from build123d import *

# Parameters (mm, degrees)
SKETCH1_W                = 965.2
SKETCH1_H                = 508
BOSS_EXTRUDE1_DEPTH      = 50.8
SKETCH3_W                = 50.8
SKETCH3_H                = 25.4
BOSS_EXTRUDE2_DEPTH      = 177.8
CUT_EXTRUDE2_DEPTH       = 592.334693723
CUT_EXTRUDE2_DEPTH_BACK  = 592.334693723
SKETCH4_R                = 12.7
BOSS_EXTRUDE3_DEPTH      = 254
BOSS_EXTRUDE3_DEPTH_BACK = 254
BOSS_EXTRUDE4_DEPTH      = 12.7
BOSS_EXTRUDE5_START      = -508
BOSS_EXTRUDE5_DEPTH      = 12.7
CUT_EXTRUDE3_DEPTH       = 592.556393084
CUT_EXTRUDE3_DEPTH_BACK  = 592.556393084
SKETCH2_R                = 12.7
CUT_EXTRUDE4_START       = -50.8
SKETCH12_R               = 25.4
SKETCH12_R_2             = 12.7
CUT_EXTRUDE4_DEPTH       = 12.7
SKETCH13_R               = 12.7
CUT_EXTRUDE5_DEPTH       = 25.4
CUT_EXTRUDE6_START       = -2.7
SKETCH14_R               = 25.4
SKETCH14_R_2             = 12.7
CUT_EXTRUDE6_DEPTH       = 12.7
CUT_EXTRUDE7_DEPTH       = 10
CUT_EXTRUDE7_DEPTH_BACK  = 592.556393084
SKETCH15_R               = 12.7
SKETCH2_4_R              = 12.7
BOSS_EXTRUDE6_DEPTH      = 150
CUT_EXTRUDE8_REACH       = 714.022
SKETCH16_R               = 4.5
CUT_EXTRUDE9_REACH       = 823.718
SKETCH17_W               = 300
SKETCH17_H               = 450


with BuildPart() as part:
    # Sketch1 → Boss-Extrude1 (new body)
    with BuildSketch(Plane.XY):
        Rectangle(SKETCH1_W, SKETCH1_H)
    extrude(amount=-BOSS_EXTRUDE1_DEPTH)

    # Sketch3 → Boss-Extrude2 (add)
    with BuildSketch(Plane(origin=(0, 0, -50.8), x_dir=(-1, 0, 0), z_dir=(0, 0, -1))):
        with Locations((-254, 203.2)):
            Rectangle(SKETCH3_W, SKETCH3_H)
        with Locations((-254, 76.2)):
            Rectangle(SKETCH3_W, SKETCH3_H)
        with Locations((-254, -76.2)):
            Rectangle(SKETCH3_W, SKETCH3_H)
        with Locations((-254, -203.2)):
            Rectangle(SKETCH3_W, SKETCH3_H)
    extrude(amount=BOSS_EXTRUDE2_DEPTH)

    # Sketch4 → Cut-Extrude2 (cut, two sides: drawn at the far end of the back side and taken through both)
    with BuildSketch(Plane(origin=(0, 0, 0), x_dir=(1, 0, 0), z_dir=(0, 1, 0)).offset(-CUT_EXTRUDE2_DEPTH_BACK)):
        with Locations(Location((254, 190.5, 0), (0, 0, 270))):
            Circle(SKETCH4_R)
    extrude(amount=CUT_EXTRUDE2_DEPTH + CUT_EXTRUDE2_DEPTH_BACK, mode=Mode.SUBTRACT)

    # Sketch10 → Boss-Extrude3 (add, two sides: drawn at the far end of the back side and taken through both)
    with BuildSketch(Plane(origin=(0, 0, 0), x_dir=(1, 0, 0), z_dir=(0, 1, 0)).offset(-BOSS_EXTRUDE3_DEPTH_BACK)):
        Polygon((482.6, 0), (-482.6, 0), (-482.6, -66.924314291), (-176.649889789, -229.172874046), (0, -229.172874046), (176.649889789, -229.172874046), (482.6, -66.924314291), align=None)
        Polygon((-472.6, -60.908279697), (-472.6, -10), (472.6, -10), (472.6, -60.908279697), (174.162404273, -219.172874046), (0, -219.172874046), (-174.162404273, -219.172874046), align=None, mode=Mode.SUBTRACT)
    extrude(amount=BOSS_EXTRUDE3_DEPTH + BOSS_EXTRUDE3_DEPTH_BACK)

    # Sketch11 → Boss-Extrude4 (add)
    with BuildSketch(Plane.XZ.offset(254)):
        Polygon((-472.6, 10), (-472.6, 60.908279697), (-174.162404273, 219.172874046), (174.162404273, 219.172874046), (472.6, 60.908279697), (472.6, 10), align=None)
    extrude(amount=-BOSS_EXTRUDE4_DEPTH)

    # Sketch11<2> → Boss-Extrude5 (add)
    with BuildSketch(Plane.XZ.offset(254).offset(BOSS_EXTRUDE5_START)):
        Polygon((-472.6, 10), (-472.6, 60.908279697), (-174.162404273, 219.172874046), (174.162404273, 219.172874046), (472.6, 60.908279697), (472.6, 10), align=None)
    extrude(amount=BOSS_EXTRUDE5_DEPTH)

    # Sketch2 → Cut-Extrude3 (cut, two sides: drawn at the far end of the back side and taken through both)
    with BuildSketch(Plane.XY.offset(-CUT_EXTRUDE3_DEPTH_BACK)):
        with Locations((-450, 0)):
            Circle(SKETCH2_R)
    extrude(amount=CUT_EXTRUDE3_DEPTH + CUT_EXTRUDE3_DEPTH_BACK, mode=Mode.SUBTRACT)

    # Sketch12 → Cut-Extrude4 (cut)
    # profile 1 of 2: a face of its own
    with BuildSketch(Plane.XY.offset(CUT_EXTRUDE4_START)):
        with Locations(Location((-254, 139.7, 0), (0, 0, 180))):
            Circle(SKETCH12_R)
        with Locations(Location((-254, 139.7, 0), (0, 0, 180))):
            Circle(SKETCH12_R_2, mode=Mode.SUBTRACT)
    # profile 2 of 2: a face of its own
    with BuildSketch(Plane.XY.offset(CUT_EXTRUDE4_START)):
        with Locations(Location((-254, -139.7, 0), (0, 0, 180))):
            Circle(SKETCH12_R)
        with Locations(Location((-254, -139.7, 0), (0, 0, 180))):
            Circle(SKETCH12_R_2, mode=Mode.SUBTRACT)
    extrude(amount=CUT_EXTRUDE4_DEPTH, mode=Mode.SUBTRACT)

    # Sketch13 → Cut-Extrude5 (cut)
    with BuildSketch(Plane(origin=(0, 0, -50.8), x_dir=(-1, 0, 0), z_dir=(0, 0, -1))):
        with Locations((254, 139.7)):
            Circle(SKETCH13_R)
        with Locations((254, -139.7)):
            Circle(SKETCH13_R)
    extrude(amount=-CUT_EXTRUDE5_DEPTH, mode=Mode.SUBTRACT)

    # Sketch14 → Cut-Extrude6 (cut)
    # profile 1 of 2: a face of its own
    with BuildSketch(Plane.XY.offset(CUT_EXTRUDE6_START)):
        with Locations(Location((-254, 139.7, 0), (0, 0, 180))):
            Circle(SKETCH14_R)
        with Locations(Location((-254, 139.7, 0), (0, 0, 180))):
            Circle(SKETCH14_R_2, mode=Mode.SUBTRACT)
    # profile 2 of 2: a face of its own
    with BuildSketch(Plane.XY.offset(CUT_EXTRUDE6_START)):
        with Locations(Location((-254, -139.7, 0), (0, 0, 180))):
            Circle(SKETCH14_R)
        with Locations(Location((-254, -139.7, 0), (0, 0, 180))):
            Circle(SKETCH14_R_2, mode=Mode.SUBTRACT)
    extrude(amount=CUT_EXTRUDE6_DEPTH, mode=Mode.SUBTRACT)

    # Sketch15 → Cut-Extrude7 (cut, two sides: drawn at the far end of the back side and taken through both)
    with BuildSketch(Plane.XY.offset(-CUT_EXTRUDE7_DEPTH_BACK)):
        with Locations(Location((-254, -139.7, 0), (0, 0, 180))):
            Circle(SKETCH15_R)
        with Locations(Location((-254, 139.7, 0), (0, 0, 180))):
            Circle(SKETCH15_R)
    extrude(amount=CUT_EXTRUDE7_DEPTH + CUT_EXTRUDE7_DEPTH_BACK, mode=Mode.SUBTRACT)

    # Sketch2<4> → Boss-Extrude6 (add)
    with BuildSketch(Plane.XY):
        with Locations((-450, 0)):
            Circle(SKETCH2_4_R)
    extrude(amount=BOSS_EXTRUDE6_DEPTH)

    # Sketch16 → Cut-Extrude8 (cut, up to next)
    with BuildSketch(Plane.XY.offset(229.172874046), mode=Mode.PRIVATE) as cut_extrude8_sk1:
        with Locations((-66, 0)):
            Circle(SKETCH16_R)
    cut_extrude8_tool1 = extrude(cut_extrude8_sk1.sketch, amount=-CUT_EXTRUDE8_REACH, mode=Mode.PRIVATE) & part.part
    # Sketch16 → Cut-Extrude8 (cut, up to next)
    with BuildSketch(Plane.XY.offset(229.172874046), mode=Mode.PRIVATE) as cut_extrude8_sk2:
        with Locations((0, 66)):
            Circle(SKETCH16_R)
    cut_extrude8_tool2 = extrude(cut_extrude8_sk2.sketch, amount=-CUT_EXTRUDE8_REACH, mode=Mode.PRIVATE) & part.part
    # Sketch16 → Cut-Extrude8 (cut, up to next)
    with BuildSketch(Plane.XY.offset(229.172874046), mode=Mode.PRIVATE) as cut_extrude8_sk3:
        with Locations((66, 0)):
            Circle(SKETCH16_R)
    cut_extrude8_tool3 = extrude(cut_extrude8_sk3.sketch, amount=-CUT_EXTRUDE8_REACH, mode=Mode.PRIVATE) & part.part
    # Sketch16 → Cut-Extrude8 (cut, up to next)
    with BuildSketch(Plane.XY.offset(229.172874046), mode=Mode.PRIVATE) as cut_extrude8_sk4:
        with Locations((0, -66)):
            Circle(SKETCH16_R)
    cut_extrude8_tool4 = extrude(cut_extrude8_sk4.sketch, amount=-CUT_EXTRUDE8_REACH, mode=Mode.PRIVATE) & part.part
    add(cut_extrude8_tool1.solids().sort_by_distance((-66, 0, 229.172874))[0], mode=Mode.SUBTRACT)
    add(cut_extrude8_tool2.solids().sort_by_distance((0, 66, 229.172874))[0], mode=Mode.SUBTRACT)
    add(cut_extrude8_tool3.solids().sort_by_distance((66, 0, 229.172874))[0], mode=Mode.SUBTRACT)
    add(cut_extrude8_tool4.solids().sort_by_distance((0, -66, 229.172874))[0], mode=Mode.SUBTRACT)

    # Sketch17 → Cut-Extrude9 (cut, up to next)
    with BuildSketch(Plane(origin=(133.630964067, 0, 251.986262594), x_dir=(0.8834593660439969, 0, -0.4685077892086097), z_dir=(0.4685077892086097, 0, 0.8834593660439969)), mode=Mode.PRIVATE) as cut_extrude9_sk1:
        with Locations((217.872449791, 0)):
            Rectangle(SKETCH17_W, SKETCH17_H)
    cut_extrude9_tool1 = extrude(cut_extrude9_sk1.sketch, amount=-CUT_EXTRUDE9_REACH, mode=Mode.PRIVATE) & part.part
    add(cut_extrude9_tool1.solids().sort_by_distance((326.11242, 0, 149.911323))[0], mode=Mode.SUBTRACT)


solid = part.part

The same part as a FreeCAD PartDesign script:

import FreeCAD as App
import Part
import Sketcher

V = App.Vector
Q = App.Units.Quantity


def add_polygon(sketch, points):
    """Adds a closed chain of lines whose ends are joined by coincident constraints."""
    first, n = sketch.GeometryCount, len(points)
    for a, b in zip(points, points[1:] + points[:1]):
        sketch.addGeometry(Part.LineSegment(App.Vector(*a, 0), App.Vector(*b, 0)), False)
    for i in range(n):
        sketch.addConstraint(Sketcher.Constraint("Coincident", first + i, 2, first + (i + 1) % n, 1))

doc = App.newDocument("Part")
params = doc.addObject("Spreadsheet::Sheet", "Params")
for row, (alias, value) in enumerate([
    ("sketch1_width", "38 in"),
    ("sketch1_height", "20 in"),
    ("pad1_length", "2 in"),
    ("sketch2_width", "2 in"),
    ("sketch2_height", "1 in"),
    ("pad2_length", "7 in"),
    ("sketch3_diameter", "1 in"),
    ("sketch4_width", "38 in"),
    ("pad3_length", "10 in"),
    ("pad3_length2", "10 in"),
    ("pad4_length", "0.5 in"),
    ("pad5_length", "0.5 in"),
    ("sketch7_diameter", "1 in"),
    ("sketch8_diameter", "2 in"),
    ("sketch8_diameter2", "1 in"),
    ("pocket3_length", "0.5 in"),
    ("sketch9_diameter", "1 in"),
    ("pocket4_length", "1 in"),
    ("sketch10_diameter", "2 in"),
    ("sketch10_diameter2", "1 in"),
    ("pocket5_length", "0.5 in"),
    ("sketch11_diameter", "1 in"),
    ("pocket6_length", "10 mm"),
    ("pocket6_length2", "592.556393 mm"),
    ("sketch12_diameter", "1 in"),
    ("pad6_length", "150 mm"),
], start=1):
    params.set(f"A{row}", alias)
    params.set(f"B{row}", "=" + value)
    params.setAlias(f"B{row}", alias)

body = doc.addObject("PartDesign::Body", "Body")

# Sketch on XY plane
sketch1 = body.newObject("Sketcher::SketchObject", "Sketch")
sketch1.AttachmentSupport = (doc.getObject("XY_Plane"), [""])
sketch1.MapMode = "FlatFace"
add_polygon(sketch1, [(-483, 254), (-483, -254), (483, -254), (483, 254)])  # lines 0-3
sketch1.addConstraint([
    Sketcher.Constraint("Vertical", 0),
    Sketcher.Constraint("Horizontal", 1),
    Sketcher.Constraint("Vertical", 2),
    Sketcher.Constraint("Horizontal", 3),
    Sketcher.Constraint("Symmetric", 0, 2, 2, 2, -1, 1),
    Sketcher.Constraint("DistanceX", 1, 1, 1, 2, Q("38 in")),
    Sketcher.Constraint("DistanceY", 0, 2, 0, 1, Q("20 in")),
])
sketch1.setExpression("Constraints[9]", "Params.sketch1_width")
sketch1.setExpression("Constraints[10]", "Params.sketch1_height")
pad1 = body.newObject("PartDesign::Pad", "Pad")
pad1.Profile = sketch1
pad1.setExpression("Length", "Params.pad1_length")
pad1.Reversed = True

# Sketch on XY plane
sketch2 = body.newObject("Sketcher::SketchObject", "Sketch001")
sketch2.AttachmentSupport = (doc.getObject("XY_Plane"), [""])
sketch2.MapMode = "FlatFace"
sketch2.AttachmentOffset = App.Placement(V(0, 0, -2 * 25.4), App.Rotation())
add_polygon(sketch2, [(279, 216), (279, 190), (229, 190), (229, 216)])  # lines 0-3
add_polygon(sketch2, [(279, 89), (279, 64), (229, 64), (229, 89)])  # lines 4-7
add_polygon(sketch2, [(279, -64), (279, -89), (229, -89), (229, -64)])  # lines 8-11
add_polygon(sketch2, [(279, -190), (279, -216), (229, -216), (229, -190)])  # lines 12-15
sketch2.addConstraint([
    Sketcher.Constraint("Vertical", 0),
    Sketcher.Constraint("Horizontal", 1),
    Sketcher.Constraint("Vertical", 2),
    Sketcher.Constraint("Horizontal", 3),
    Sketcher.Constraint("Vertical", 4),
    Sketcher.Constraint("Horizontal", 5),
    Sketcher.Constraint("Vertical", 6),
    Sketcher.Constraint("Horizontal", 7),
    Sketcher.Constraint("Vertical", 8),
    Sketcher.Constraint("Horizontal", 9),
    Sketcher.Constraint("Vertical", 10),
    Sketcher.Constraint("Horizontal", 11),
    Sketcher.Constraint("Vertical", 12),
    Sketcher.Constraint("Horizontal", 13),
    Sketcher.Constraint("Vertical", 14),
    Sketcher.Constraint("Horizontal", 15),
    Sketcher.Constraint("Symmetric", 7, 2, 8, 2, -1),
    Sketcher.Constraint("Symmetric", 5, 2, 10, 2, -1),
    Sketcher.Constraint("Symmetric", 3, 2, 12, 2, -1),
    Sketcher.Constraint("Symmetric", 1, 2, 14, 2, -1),
    Sketcher.Constraint("Vertical", 3, 2, 4, 2),
    Sketcher.Constraint("Vertical", 2, 2, 5, 2),
    Sketcher.Constraint("Equal", 2, 4),
    Sketcher.Constraint("DistanceX", 1, 2, 1, 1, Q("2 in")),
    Sketcher.Constraint("DistanceY", 0, 2, 0, 1, Q("1 in")),
    Sketcher.Constraint("DistanceX", -1, 1, 0, 2, Q("11 in")),
    Sketcher.Constraint("DistanceY", 4, 2, 0, 2, Q("5 in")),
    Sketcher.Constraint("DistanceY", 8, 2, 4, 2, Q("6 in")),
])
sketch2.setExpression("Constraints[39]", "Params.sketch2_width")
sketch2.setExpression("Constraints[40]", "Params.sketch2_height")
pad2 = body.newObject("PartDesign::Pad", "Pad001")
pad2.Profile = sketch2
pad2.setExpression("Length", "Params.pad2_length")
pad2.Reversed = True

# Sketch on XZ plane
sketch3 = body.newObject("Sketcher::SketchObject", "Sketch002")
sketch3.AttachmentSupport = (doc.getObject("XZ_Plane"), [""])
sketch3.MapMode = "FlatFace"
sketch3.addGeometry(Part.Circle(V(254, -190, 0), V(0, 0, 1), 13), False)
sketch3.addConstraint([
    Sketcher.Constraint("Diameter", 0, Q("1 in")),
    Sketcher.Constraint("DistanceX", -1, 1, 0, 3, Q("10 in")),
    Sketcher.Constraint("DistanceY", 0, 3, -1, 1, Q("7.5 in")),
])
sketch3.setExpression("Constraints[0]", "Params.sketch3_diameter")
pocket1 = body.newObject("PartDesign::Pocket", "Pocket")
pocket1.Profile = sketch3
pocket1.Type = "ThroughAll"
pocket1.Midplane = True

# Sketch on XZ plane
sketch4 = body.newObject("Sketcher::SketchObject", "Sketch003")
sketch4.AttachmentSupport = (doc.getObject("XZ_Plane"), [""])
sketch4.MapMode = "FlatFace"
add_polygon(sketch4, [(482.6, 0), (-482.6, 0), (-482.6, 66.924314), (-176.64989, 229.172874), (176.64989, 229.172874), (482.6, 66.924314)])  # lines 0-5
add_polygon(sketch4, [(-174.162404, 219.172874), (-472.6, 60.90828), (-472.6, 10), (472.6, 10), (472.6, 60.90828), (174.162404, 219.172874)])  # lines 6-11
sketch4.addConstraint([
    Sketcher.Constraint("Horizontal", 0),
    Sketcher.Constraint("Vertical", 1),
    Sketcher.Constraint("Horizontal", 3),
    Sketcher.Constraint("Vertical", 5),
    Sketcher.Constraint("Vertical", 7),
    Sketcher.Constraint("Horizontal", 8),
    Sketcher.Constraint("Vertical", 9),
    Sketcher.Constraint("Horizontal", 11),
    Sketcher.Constraint("Symmetric", 0, 2, 5, 2, -1, 1),
    Sketcher.Constraint("Symmetric", 6, 2, 9, 2, -2),
    Sketcher.Constraint("Parallel", 2, 6),
    Sketcher.Constraint("Parallel", 4, 10),
    Sketcher.Constraint("Horizontal", 1, 2, 4, 2),
    Sketcher.Constraint("Equal", 2, 4),
    Sketcher.Constraint("DistanceX", 0, 2, 0, 1, Q("38 in")),
    Sketcher.Constraint("DistanceX", 8, 1, 8, 2, 945.2),
    Sketcher.Constraint("DistanceX", 3, 1, 3, 2, 353.29978),
    Sketcher.Constraint("DistanceX", 11, 2, 11, 1, 348.324809),
    Sketcher.Constraint("DistanceY", 7, 2, 7, 1, 50.90828),
    Sketcher.Constraint("DistanceY", -1, 1, 7, 2, 10.0),
    Sketcher.Constraint("DistanceY", 10, 2, 3, 2, 10.0),
    Sketcher.Constraint("DistanceY", 1, 1, 1, 2, 66.924314),
])
sketch4.setExpression("Constraints[26]", "Params.sketch4_width")
pad3 = body.newObject("PartDesign::Pad", "Pad002")
pad3.Profile = sketch4
pad3.Type = "TwoLengths"
pad3.setExpression("Length", "Params.pad3_length")
pad3.setExpression("Length2", "Params.pad3_length2")
pad3.Reversed = True

# Sketch on XZ plane
sketch5 = body.newObject("Sketcher::SketchObject", "Sketch004")
sketch5.AttachmentSupport = (doc.getObject("XZ_Plane"), [""])
sketch5.MapMode = "FlatFace"
sketch5.AttachmentOffset = App.Placement(V(0, 0, 10 * 25.4), App.Rotation())
add_polygon(sketch5, [(-473, 61), (-473, 10), (473, 10), (473, 61), (174, 219), (-174, 219)])  # lines 0-5
sketch5.addConstraint([
    Sketcher.Constraint("Vertical", 0),
    Sketcher.Constraint("Horizontal", 1),
    Sketcher.Constraint("Vertical", 2),
    Sketcher.Constraint("Horizontal", 4),
    Sketcher.Constraint("Symmetric", 2, 2, 5, 2, -2),
    Sketcher.Constraint("Equal", 3, 5),
    Sketcher.Constraint("DistanceX", 1, 1, 1, 2, 945.2),
    Sketcher.Constraint("DistanceX", 4, 2, 4, 1, 348.324809),
    Sketcher.Constraint("DistanceY", 0, 2, 0, 1, 50.90828),
    Sketcher.Constraint("DistanceY", -1, 1, 0, 2, 10.0),
    Sketcher.Constraint("Distance", 3, 337.805684),
])
pad4 = body.newObject("PartDesign::Pad", "Pad003")
pad4.Profile = sketch5
pad4.setExpression("Length", "Params.pad4_length")
pad4.Reversed = True

# Sketch on XZ plane
sketch6 = body.newObject("Sketcher::SketchObject", "Sketch005")
sketch6.AttachmentSupport = (doc.getObject("XZ_Plane"), [""])
sketch6.MapMode = "FlatFace"
sketch6.AttachmentOffset = App.Placement(V(0, 0, -10 * 25.4), App.Rotation())
add_polygon(sketch6, [(-473, 61), (-473, 10), (473, 10), (473, 61), (174, 219), (-174, 219)])  # lines 0-5
sketch6.addConstraint([
    Sketcher.Constraint("Vertical", 0),
    Sketcher.Constraint("Horizontal", 1),
    Sketcher.Constraint("Vertical", 2),
    Sketcher.Constraint("Horizontal", 4),
    Sketcher.Constraint("Symmetric", 2, 2, 5, 2, -2),
    Sketcher.Constraint("Equal", 3, 5),
    Sketcher.Constraint("DistanceX", 1, 1, 1, 2, 945.2),
    Sketcher.Constraint("DistanceX", 4, 2, 4, 1, 348.324809),
    Sketcher.Constraint("DistanceY", 0, 2, 0, 1, 50.90828),
    Sketcher.Constraint("DistanceY", -1, 1, 0, 2, 10.0),
    Sketcher.Constraint("Distance", 3, 337.805684),
])
pad5 = body.newObject("PartDesign::Pad", "Pad004")
pad5.Profile = sketch6
pad5.setExpression("Length", "Params.pad5_length")

# Sketch on XY plane
sketch7 = body.newObject("Sketcher::SketchObject", "Sketch006")
sketch7.AttachmentSupport = (doc.getObject("XY_Plane"), [""])
sketch7.MapMode = "FlatFace"
sketch7.addGeometry(Part.Circle(V(-450, 0, 0), V(0, 0, 1), 13), False)
sketch7.addConstraint([
    Sketcher.Constraint("PointOnObject", 0, 3, -1),
    Sketcher.Constraint("Diameter", 0, Q("1 in")),
    Sketcher.Constraint("DistanceX", 0, 3, -1, 1, 450.0),
])
sketch7.setExpression("Constraints[1]", "Params.sketch7_diameter")
pocket2 = body.newObject("PartDesign::Pocket", "Pocket001")
pocket2.Profile = sketch7
pocket2.Type = "ThroughAll"
pocket2.Midplane = True

# Sketch on XY plane
sketch8 = body.newObject("Sketcher::SketchObject", "Sketch007")
sketch8.AttachmentSupport = (doc.getObject("XY_Plane"), [""])
sketch8.MapMode = "FlatFace"
sketch8.AttachmentOffset = App.Placement(V(0, 0, -2 * 25.4), App.Rotation())
sketch8.addGeometry([
    Part.Circle(V(-254, 140, 0), V(0, 0, 1), 25),
    Part.Circle(V(-254, 140, 0), V(0, 0, 1), 13),
    Part.Circle(V(-254, -140, 0), V(0, 0, 1), 25),
    Part.Circle(V(-254, -140, 0), V(0, 0, 1), 13),
], False)
sketch8.addConstraint([
    Sketcher.Constraint("Coincident", 1, 3, 0, 3),
    Sketcher.Constraint("Coincident", 3, 3, 2, 3),
    Sketcher.Constraint("Equal", 0, 2),
    Sketcher.Constraint("Equal", 1, 3),
    Sketcher.Constraint("Symmetric", 0, 3, 2, 3, -1),
    Sketcher.Constraint("Diameter", 0, Q("2 in")),
    Sketcher.Constraint("Diameter", 1, Q("1 in")),
    Sketcher.Constraint("DistanceX", 0, 3, -1, 1, Q("10 in")),
    Sketcher.Constraint("DistanceY", 2, 3, 0, 3, Q("11 in")),
])
sketch8.setExpression("Constraints[5]", "Params.sketch8_diameter")
sketch8.setExpression("Constraints[6]", "Params.sketch8_diameter2")
pocket3 = body.newObject("PartDesign::Pocket", "Pocket002")
pocket3.Profile = sketch8
pocket3.setExpression("Length", "Params.pocket3_length")
pocket3.Reversed = True

# Sketch on XY plane
sketch9 = body.newObject("Sketcher::SketchObject", "Sketch008")
sketch9.AttachmentSupport = (doc.getObject("XY_Plane"), [""])
sketch9.MapMode = "FlatFace"
sketch9.AttachmentOffset = App.Placement(V(0, 0, -2 * 25.4), App.Rotation())
sketch9.addGeometry([
    Part.Circle(V(-254, 140, 0), V(0, 0, 1), 13),
    Part.Circle(V(-254, -140, 0), V(0, 0, 1), 13),
], False)
sketch9.addConstraint([
    Sketcher.Constraint("Equal", 0, 1),
    Sketcher.Constraint("Symmetric", 0, 3, 1, 3, -1),
    Sketcher.Constraint("Diameter", 0, Q("1 in")),
    Sketcher.Constraint("DistanceX", 0, 3, -1, 1, Q("10 in")),
    Sketcher.Constraint("DistanceY", 1, 3, 0, 3, Q("11 in")),
])
sketch9.setExpression("Constraints[2]", "Params.sketch9_diameter")
pocket4 = body.newObject("PartDesign::Pocket", "Pocket003")
pocket4.Profile = sketch9
pocket4.setExpression("Length", "Params.pocket4_length")
pocket4.Reversed = True

# Sketch on XY plane
sketch10 = body.newObject("Sketcher::SketchObject", "Sketch009")
sketch10.AttachmentSupport = (doc.getObject("XY_Plane"), [""])
sketch10.MapMode = "FlatFace"
sketch10.AttachmentOffset = App.Placement(V(0, 0, -2.7), App.Rotation())
sketch10.addGeometry([
    Part.Circle(V(-254, 140, 0), V(0, 0, 1), 25),
    Part.Circle(V(-254, 140, 0), V(0, 0, 1), 13),
    Part.Circle(V(-254, -140, 0), V(0, 0, 1), 25),
    Part.Circle(V(-254, -140, 0), V(0, 0, 1), 13),
], False)
sketch10.addConstraint([
    Sketcher.Constraint("Coincident", 1, 3, 0, 3),
    Sketcher.Constraint("Coincident", 3, 3, 2, 3),
    Sketcher.Constraint("Equal", 0, 2),
    Sketcher.Constraint("Equal", 1, 3),
    Sketcher.Constraint("Symmetric", 0, 3, 2, 3, -1),
    Sketcher.Constraint("Diameter", 0, Q("2 in")),
    Sketcher.Constraint("Diameter", 1, Q("1 in")),
    Sketcher.Constraint("DistanceX", 0, 3, -1, 1, Q("10 in")),
    Sketcher.Constraint("DistanceY", 2, 3, 0, 3, Q("11 in")),
])
sketch10.setExpression("Constraints[5]", "Params.sketch10_diameter")
sketch10.setExpression("Constraints[6]", "Params.sketch10_diameter2")
pocket5 = body.newObject("PartDesign::Pocket", "Pocket004")
pocket5.Profile = sketch10
pocket5.setExpression("Length", "Params.pocket5_length")
pocket5.Reversed = True

# Sketch on XY plane
sketch11 = body.newObject("Sketcher::SketchObject", "Sketch010")
sketch11.AttachmentSupport = (doc.getObject("XY_Plane"), [""])
sketch11.MapMode = "FlatFace"
sketch11.addGeometry([
    Part.Circle(V(-254, -140, 0), V(0, 0, 1), 13),
    Part.Circle(V(-254, 140, 0), V(0, 0, 1), 13),
], False)
sketch11.addConstraint([
    Sketcher.Constraint("Equal", 0, 1),
    Sketcher.Constraint("Symmetric", 0, 3, 1, 3, -1),
    Sketcher.Constraint("Diameter", 0, Q("1 in")),
    Sketcher.Constraint("DistanceX", 0, 3, -1, 1, Q("10 in")),
    Sketcher.Constraint("DistanceY", 0, 3, 1, 3, Q("11 in")),
])
sketch11.setExpression("Constraints[2]", "Params.sketch11_diameter")
pocket6 = body.newObject("PartDesign::Pocket", "Pocket005")
pocket6.Profile = sketch11
pocket6.Type = "TwoLengths"
pocket6.setExpression("Length", "Params.pocket6_length")
pocket6.setExpression("Length2", "Params.pocket6_length2")
pocket6.Reversed = True

# Sketch on XY plane
sketch12 = body.newObject("Sketcher::SketchObject", "Sketch011")
sketch12.AttachmentSupport = (doc.getObject("XY_Plane"), [""])
sketch12.MapMode = "FlatFace"
sketch12.addGeometry(Part.Circle(V(-450, 0, 0), V(0, 0, 1), 13), False)
sketch12.addConstraint([
    Sketcher.Constraint("PointOnObject", 0, 3, -1),
    Sketcher.Constraint("Diameter", 0, Q("1 in")),
    Sketcher.Constraint("DistanceX", 0, 3, -1, 1, 450.0),
])
sketch12.setExpression("Constraints[1]", "Params.sketch12_diameter")
pad6 = body.newObject("PartDesign::Pad", "Pad005")
pad6.Profile = sketch12
pad6.setExpression("Length", "Params.pad6_length")

# Sketch on XY plane
sketch13 = body.newObject("Sketcher::SketchObject", "Sketch012")
sketch13.AttachmentSupport = (doc.getObject("XY_Plane"), [""])
sketch13.MapMode = "FlatFace"
sketch13.AttachmentOffset = App.Placement(V(0, 0, 229.172874), App.Rotation())
sketch13.addGeometry(Part.Circle(V(-66, 0, 0), V(0, 0, 1), 4.5), False)
sketch13.addConstraint([
    Sketcher.Constraint("PointOnObject", 0, 3, -1),
    Sketcher.Constraint("Diameter", 0, 9.0),
    Sketcher.Constraint("DistanceX", 0, 3, -1, 1, 66.0),
])
pocket7 = body.newObject("PartDesign::Pocket", "Pocket006")
pocket7.Profile = sketch13
pocket7.Type = "UpToFirst"

# Sketch on XY plane
sketch14 = body.newObject("Sketcher::SketchObject", "Sketch013")
sketch14.AttachmentSupport = (doc.getObject("XY_Plane"), [""])
sketch14.MapMode = "FlatFace"
sketch14.AttachmentOffset = App.Placement(V(0, 0, 229.172874), App.Rotation())
sketch14.addGeometry(Part.Circle(V(0, 66, 0), V(0, 0, 1), 4.5), False)
sketch14.addConstraint([
    Sketcher.Constraint("PointOnObject", 0, 3, -2),
    Sketcher.Constraint("Diameter", 0, 9.0),
    Sketcher.Constraint("DistanceY", -1, 1, 0, 3, 66.0),
])
pocket8 = body.newObject("PartDesign::Pocket", "Pocket007")
pocket8.Profile = sketch14
pocket8.Type = "UpToFirst"

# Sketch on XY plane
sketch15 = body.newObject("Sketcher::SketchObject", "Sketch014")
sketch15.AttachmentSupport = (doc.getObject("XY_Plane"), [""])
sketch15.MapMode = "FlatFace"
sketch15.AttachmentOffset = App.Placement(V(0, 0, 229.172874), App.Rotation())
sketch15.addGeometry(Part.Circle(V(66, 0, 0), V(0, 0, 1), 4.5), False)
sketch15.addConstraint([
    Sketcher.Constraint("PointOnObject", 0, 3, -1),
    Sketcher.Constraint("Diameter", 0, 9.0),
    Sketcher.Constraint("DistanceX", -1, 1, 0, 3, 66.0),
])
pocket9 = body.newObject("PartDesign::Pocket", "Pocket008")
pocket9.Profile = sketch15
pocket9.Type = "UpToFirst"

# Sketch on XY plane
sketch16 = body.newObject("Sketcher::SketchObject", "Sketch015")
sketch16.AttachmentSupport = (doc.getObject("XY_Plane"), [""])
sketch16.MapMode = "FlatFace"
sketch16.AttachmentOffset = App.Placement(V(0, 0, 229.172874), App.Rotation())
sketch16.addGeometry(Part.Circle(V(0, -66, 0), V(0, 0, 1), 4.5), False)
sketch16.addConstraint([
    Sketcher.Constraint("PointOnObject", 0, 3, -2),
    Sketcher.Constraint("Diameter", 0, 9.0),
    Sketcher.Constraint("DistanceY", 0, 3, -1, 1, 66.0),
])
pocket10 = body.newObject("PartDesign::Pocket", "Pocket009")
pocket10.Profile = sketch16
pocket10.Type = "UpToFirst"

# Sketch on an angled plane
sketch17 = body.newObject("Sketcher::SketchObject", "Sketch016")
sketch17.Placement = App.Placement(V(133.630964, 0, 251.986263), App.Rotation(V(0.883459366, 0, -0.468507789), V(0, 1, 0), V(0.468507789, 0, 0.883459366), "ZXY"))
add_polygon(sketch17, [(68, 225), (68, -225), (368, -225), (368, 225)])  # lines 0-3
sketch17.addConstraint([
    Sketcher.Constraint("Vertical", 0),
    Sketcher.Constraint("Horizontal", 1),
    Sketcher.Constraint("Vertical", 2),
    Sketcher.Constraint("Horizontal", 3),
    Sketcher.Constraint("DistanceX", 1, 1, 1, 2, 300.0),
    Sketcher.Constraint("DistanceY", 0, 2, 0, 1, 450.0),
    Sketcher.Constraint("DistanceY", 0, 2, -1, 1, 225.0),
    Sketcher.Constraint("DistanceX", -1, 1, 0, 2, 67.87245),
])
pocket11 = body.newObject("PartDesign::Pocket", "Pocket010")
pocket11.Profile = sketch17
pocket11.Type = "UpToFirst"

doc.recompute()
